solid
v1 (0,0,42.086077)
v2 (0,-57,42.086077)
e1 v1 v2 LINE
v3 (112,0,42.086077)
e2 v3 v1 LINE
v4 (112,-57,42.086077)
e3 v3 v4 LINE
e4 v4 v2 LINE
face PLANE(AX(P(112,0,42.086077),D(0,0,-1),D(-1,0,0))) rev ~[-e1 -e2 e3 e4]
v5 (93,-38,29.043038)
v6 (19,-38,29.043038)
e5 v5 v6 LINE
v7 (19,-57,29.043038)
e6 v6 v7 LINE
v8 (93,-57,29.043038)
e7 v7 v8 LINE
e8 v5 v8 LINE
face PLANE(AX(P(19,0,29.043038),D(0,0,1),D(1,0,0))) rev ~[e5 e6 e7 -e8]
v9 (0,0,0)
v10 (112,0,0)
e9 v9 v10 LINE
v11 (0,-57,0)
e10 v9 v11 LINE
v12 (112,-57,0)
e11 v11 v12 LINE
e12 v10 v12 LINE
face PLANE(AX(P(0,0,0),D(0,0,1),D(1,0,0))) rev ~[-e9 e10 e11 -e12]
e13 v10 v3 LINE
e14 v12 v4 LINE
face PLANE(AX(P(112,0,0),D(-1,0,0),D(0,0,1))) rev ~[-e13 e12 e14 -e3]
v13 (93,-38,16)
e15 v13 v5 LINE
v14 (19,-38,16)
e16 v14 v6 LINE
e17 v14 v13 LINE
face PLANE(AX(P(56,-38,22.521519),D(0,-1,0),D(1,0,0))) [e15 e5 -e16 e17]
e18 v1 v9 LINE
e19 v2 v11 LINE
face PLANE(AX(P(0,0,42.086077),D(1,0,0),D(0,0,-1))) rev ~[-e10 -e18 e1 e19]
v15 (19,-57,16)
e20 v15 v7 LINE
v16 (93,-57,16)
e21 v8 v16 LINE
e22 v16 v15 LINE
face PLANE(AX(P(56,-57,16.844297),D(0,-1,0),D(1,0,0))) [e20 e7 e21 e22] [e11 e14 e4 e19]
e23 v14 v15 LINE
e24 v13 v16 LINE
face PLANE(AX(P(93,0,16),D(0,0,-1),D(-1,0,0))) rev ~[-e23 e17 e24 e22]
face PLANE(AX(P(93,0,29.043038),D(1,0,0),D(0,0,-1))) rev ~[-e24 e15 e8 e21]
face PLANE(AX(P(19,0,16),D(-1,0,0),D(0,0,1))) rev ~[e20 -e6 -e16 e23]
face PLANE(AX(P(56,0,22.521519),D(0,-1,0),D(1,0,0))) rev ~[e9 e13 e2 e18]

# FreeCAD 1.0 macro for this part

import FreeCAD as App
import Part
import Sketcher

V = App.Vector
Q = App.Units.Quantity


def add_polygon(sketch, points):
    """Adds a closed chain of lines whose ends are joined by coincident constraints."""
    first, n = sketch.GeometryCount, len(points)
    for a, b in zip(points, points[1:] + points[:1]):
        sketch.addGeometry(Part.LineSegment(App.Vector(*a, 0), App.Vector(*b, 0)), False)
    for i in range(n):
        sketch.addConstraint(Sketcher.Constraint("Coincident", first + i, 2, first + (i + 1) % n, 1))

doc = App.newDocument("Part")
params = doc.addObject("Spreadsheet::Sheet", "Params")
for row, (alias, value) in enumerate([
    ("sketch1_width", "112 mm"),
    ("sketch1_width2", "74 mm"),
    ("pad1_length", "57 mm"),
    ("sketch2_width", "74 mm"),
    ("pad2_length", "38 mm"),
], start=1):
    params.set(f"A{row}", alias)
    params.set(f"B{row}", "=" + value)
    params.setAlias(f"B{row}", alias)

body = doc.addObject("PartDesign::Body", "Body")

# Sketch on XZ plane
sketch1 = body.newObject("Sketcher::SketchObject", "Sketch")
sketch1.AttachmentSupport = (doc.getObject("XZ_Plane"), [""])
sketch1.MapMode = "FlatFace"
add_polygon(sketch1, [(0, 42), (0, 0), (112, 0), (112, 42)])  # lines 0-3
add_polygon(sketch1, [(93, 29), (93, 16), (19, 16), (19, 29)])  # lines 4-7
sketch1.addConstraint(Sketcher.Constraint("Vertical", 0))
sketch1.addConstraint(Sketcher.Constraint("Horizontal", 1))
sketch1.addConstraint(Sketcher.Constraint("Vertical", 2))
sketch1.addConstraint(Sketcher.Constraint("Horizontal", 3))
sketch1.addConstraint(Sketcher.Constraint("Vertical", 4))
sketch1.addConstraint(Sketcher.Constraint("Horizontal", 5))
sketch1.addConstraint(Sketcher.Constraint("Vertical", 6))
sketch1.addConstraint(Sketcher.Constraint("Horizontal", 7))
sketch1.addConstraint(Sketcher.Constraint("Coincident", 0, 2, -1, 1))
sketch1.addConstraint(Sketcher.Constraint("DistanceX", 1, 1, 1, 2, Q("112 mm")))
sketch1.addConstraint(Sketcher.Constraint("DistanceX", 5, 2, 5, 1, Q("74 mm")))
sketch1.addConstraint(Sketcher.Constraint("DistanceX", -1, 1, 4, 2, Q("93 mm")))
sketch1.addConstraint(Sketcher.Constraint("DistanceY", -1, 1, 4, 2, Q("16 mm")))
sketch1.addConstraint(Sketcher.Constraint("DistanceY", 0, 2, 0, 1, Q("42.086077 mm")))
sketch1.addConstraint(Sketcher.Constraint("DistanceY", 4, 2, 4, 1, Q("13.043038 mm")))
sketch1.setExpression("Constraints[17]", "Params.sketch1_width")
sketch1.setExpression("Constraints[18]", "Params.sketch1_width2")
pad1 = body.newObject("PartDesign::Pad", "Pad")
pad1.Profile = sketch1
pad1.setExpression("Length", "Params.pad1_length")

# Sketch on XZ plane
sketch2 = body.newObject("Sketcher::SketchObject", "Sketch001")
sketch2.AttachmentSupport = (doc.getObject("XZ_Plane"), [""])
sketch2.MapMode = "FlatFace"
add_polygon(sketch2, [(19, 29), (19, 16), (93, 16), (93, 29)])  # lines 0-3
sketch2.addConstraint(Sketcher.Constraint("Vertical", 0))
sketch2.addConstraint(Sketcher.Constraint("Horizontal", 1))
sketch2.addConstraint(Sketcher.Constraint("Vertical", 2))
sketch2.addConstraint(Sketcher.Constraint("Horizontal", 3))
sketch2.addConstraint(Sketcher.Constraint("DistanceX", 1, 1, 1, 2, Q("74 mm")))
sketch2.addConstraint(Sketcher.Constraint("DistanceX", -1, 1, 0, 2, Q("19 mm")))
sketch2.addConstraint(Sketcher.Constraint("DistanceY", -1, 1, 0, 2, Q("16 mm")))
sketch2.addConstraint(Sketcher.Constraint("DistanceY", 0, 2, 0, 1, Q("13.043038 mm")))
sketch2.setExpression("Constraints[8]", "Params.sketch2_width")
pad2 = body.newObject("PartDesign::Pad", "Pad001")
pad2.Profile = sketch2
pad2.setExpression("Length", "Params.pad2_length")

doc.recompute()
